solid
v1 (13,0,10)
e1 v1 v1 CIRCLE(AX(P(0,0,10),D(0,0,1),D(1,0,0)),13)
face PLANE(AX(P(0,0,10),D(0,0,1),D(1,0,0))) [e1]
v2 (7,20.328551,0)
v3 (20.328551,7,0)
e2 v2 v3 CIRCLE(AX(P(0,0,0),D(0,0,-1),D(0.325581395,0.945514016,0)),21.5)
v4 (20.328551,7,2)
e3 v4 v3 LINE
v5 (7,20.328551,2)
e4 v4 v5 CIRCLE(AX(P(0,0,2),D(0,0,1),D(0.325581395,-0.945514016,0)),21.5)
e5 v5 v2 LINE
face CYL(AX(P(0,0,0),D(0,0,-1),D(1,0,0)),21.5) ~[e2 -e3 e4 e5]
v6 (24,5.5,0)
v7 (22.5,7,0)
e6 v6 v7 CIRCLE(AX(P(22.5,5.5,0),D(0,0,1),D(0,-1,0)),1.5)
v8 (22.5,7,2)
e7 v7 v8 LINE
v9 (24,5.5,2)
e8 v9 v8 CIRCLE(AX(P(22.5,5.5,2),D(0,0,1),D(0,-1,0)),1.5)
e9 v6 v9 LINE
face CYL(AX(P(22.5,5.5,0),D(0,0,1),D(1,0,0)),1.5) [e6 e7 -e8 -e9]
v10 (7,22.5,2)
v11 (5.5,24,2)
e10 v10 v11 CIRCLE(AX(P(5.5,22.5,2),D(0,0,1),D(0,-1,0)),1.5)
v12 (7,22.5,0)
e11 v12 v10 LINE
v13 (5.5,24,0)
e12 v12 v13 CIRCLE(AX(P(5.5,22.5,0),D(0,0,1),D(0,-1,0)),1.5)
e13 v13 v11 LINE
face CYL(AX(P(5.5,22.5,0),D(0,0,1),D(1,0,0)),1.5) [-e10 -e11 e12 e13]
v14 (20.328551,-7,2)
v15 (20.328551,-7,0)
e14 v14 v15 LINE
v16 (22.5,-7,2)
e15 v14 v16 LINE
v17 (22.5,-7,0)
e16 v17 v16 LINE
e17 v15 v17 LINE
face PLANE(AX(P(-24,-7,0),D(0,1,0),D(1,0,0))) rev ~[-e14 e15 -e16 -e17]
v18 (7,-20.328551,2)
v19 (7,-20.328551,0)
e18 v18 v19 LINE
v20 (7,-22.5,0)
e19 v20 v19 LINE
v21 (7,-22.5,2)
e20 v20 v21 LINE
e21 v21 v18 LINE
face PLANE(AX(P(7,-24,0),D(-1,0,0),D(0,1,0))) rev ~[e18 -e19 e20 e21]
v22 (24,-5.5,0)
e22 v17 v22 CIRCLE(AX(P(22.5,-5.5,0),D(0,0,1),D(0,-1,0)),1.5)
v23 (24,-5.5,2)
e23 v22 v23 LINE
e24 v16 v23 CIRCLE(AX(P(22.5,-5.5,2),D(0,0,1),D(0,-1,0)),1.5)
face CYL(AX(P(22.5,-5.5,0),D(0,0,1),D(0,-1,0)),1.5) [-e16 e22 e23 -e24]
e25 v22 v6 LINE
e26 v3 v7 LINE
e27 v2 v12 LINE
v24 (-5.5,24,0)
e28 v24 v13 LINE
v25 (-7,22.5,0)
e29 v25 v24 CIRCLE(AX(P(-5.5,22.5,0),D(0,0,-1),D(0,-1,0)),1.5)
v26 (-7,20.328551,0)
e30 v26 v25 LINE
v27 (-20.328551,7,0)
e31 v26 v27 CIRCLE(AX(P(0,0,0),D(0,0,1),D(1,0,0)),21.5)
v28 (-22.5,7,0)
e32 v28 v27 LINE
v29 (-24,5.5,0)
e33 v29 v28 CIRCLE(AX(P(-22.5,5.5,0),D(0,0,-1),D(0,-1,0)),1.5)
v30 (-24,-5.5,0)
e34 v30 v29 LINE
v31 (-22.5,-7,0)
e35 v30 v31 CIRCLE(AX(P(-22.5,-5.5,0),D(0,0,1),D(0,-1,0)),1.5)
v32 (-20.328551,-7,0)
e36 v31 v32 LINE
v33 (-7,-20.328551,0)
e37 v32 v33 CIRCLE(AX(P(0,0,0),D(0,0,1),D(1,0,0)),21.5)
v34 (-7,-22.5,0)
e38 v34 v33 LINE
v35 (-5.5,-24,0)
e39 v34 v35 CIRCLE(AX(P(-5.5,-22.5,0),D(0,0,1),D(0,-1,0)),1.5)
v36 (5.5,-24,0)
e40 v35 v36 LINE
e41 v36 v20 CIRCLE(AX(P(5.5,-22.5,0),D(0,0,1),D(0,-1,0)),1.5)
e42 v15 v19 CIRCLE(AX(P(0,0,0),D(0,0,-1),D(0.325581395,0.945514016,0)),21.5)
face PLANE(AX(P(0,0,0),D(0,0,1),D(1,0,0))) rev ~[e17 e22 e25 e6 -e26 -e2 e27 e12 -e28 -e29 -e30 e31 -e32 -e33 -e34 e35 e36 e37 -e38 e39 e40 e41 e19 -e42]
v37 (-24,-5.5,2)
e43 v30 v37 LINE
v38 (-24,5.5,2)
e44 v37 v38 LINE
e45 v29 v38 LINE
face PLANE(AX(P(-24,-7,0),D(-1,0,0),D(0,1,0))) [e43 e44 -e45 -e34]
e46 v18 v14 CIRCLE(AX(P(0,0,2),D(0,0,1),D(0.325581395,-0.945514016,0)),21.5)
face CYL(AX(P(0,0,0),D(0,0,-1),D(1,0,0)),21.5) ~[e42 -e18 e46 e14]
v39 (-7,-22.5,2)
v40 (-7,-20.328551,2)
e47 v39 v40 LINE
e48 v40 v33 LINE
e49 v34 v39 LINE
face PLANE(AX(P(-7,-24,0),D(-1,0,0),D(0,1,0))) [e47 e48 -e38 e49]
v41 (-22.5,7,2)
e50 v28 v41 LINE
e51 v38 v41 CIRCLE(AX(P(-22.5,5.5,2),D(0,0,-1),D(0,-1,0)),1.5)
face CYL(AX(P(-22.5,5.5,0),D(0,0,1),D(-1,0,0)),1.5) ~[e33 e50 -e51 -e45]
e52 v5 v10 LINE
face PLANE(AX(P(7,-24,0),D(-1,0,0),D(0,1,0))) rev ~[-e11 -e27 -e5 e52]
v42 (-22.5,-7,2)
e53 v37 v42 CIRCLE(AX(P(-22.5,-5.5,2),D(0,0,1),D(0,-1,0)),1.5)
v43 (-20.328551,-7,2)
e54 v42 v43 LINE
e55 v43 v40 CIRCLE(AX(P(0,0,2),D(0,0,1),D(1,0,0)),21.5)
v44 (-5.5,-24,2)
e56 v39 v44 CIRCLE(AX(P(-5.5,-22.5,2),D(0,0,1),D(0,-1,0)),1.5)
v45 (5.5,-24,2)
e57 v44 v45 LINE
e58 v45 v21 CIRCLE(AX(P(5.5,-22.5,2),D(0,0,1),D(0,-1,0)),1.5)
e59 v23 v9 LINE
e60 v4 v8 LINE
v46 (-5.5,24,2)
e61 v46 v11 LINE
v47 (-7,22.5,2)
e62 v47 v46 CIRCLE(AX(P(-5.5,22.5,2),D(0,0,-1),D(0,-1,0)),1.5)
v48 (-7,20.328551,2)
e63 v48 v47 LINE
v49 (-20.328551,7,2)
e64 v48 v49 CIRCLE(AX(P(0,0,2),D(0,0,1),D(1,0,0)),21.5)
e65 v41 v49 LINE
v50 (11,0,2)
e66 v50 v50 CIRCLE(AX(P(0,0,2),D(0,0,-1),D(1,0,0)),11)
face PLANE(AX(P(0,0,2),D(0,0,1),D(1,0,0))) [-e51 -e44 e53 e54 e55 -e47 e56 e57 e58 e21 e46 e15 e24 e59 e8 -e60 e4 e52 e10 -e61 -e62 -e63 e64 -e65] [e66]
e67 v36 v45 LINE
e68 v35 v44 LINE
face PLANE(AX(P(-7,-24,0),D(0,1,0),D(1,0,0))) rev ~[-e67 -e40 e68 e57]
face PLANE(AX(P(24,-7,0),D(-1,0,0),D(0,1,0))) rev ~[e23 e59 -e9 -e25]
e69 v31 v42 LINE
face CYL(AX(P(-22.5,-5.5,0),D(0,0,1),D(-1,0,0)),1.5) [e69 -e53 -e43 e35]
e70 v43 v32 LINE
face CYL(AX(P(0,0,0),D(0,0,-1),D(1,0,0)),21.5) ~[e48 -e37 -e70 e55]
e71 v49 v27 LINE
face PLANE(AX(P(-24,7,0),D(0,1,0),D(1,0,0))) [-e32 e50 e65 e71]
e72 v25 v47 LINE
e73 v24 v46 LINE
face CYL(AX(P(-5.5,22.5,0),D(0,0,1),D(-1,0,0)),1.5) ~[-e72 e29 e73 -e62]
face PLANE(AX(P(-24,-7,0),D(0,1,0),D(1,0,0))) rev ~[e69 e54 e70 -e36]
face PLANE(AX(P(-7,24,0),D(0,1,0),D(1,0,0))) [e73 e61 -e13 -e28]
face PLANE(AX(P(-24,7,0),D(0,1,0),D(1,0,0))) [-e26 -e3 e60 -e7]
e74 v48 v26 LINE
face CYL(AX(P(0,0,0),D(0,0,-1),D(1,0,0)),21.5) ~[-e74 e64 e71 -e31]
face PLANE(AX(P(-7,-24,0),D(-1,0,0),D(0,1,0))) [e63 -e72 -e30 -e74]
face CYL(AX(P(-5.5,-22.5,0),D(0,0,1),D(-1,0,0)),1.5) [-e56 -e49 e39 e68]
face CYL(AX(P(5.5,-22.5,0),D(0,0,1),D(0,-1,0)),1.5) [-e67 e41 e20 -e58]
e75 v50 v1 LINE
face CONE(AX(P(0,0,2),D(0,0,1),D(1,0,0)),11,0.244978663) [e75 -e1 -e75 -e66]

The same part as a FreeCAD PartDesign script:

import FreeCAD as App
import Part
import Sketcher
Q = App.Units.Quantity


def edges_at(feature, points):
    """Names of the edges that pass closest to the given points."""
    edges = feature.Shape.Edges
    near = lambda p: min(range(len(edges)), key=lambda i: edges[i].distToShape(Part.Vertex(*p))[0])
    return sorted({f"Edge{near(p) + 1}" for p in points})


def add_polygon(sketch, points):
    """Adds a closed chain of lines whose ends are joined by coincident constraints."""
    first, n = sketch.GeometryCount, len(points)
    for a, b in zip(points, points[1:] + points[:1]):
        sketch.addGeometry(Part.LineSegment(App.Vector(*a, 0), App.Vector(*b, 0)), False)
    for i in range(n):
        sketch.addConstraint(Sketcher.Constraint("Coincident", first + i, 2, first + (i + 1) % n, 1))

doc = App.newDocument("Part")
body = doc.addObject("PartDesign::Body", "Body")

# Sketch on XZ plane
sketch1 = body.newObject("Sketcher::SketchObject", "Sketch")
sketch1.AttachmentSupport = (doc.getObject("XZ_Plane"), [""])
sketch1.MapMode = "FlatFace"
add_polygon(sketch1, [(0, 2), (11, 2), (13, 10), (0, 10)])  # lines 0-3
sketch1.addConstraint([
    Sketcher.Constraint("Horizontal", 0),
    Sketcher.Constraint("Horizontal", 2),
    Sketcher.Constraint("Vertical", 3),
    Sketcher.Constraint("PointOnObject", 2, 2, -2),
    Sketcher.Constraint("DistanceX", 0, 1, 0, 2, Q("11 mm")),
    Sketcher.Constraint("DistanceX", 2, 2, 2, 1, Q("13 mm")),
    Sketcher.Constraint("DistanceY", 3, 2, 3, 1, Q("8 mm")),
    Sketcher.Constraint("DistanceY", -1, 1, 0, 2, Q("2 mm")),
])
revolution = body.newObject("PartDesign::Revolution", "Revolution")
revolution.Profile = sketch1
revolution.ReferenceAxis = (sketch1, ["V_Axis"])
revolution.Angle = 360
body2 = doc.addObject("PartDesign::Body", "Body001")

# Sketch on XY plane
sketch2 = body2.newObject("Sketcher::SketchObject", "Sketch001")
sketch2.AttachmentSupport = (doc.getObject("XY_Plane001"), [""])
sketch2.MapMode = "FlatFace"
add_polygon(sketch2, [(-7, 24), (-7, -24), (7, -24), (7, 24)])  # lines 0-3
sketch2.addConstraint([
    Sketcher.Constraint("Vertical", 0),
    Sketcher.Constraint("Horizontal", 1),
    Sketcher.Constraint("Vertical", 2),
    Sketcher.Constraint("Horizontal", 3),
    Sketcher.Constraint("Symmetric", 0, 2, 2, 2, -1, 1),
    Sketcher.Constraint("DistanceX", 1, 1, 1, 2, Q("14 mm")),
    Sketcher.Constraint("DistanceY", 0, 2, 0, 1, Q("48 mm")),
])
pad1 = body2.newObject("PartDesign::Pad", "Pad")
pad1.Profile = sketch2
pad1.Length = 2
doc.recompute()

fillet = body2.newObject("PartDesign::Fillet", "Fillet")
fillet.Base = (pad1, edges_at(pad1, [
    (-7, -24, 1),
    (-7, 24, 1),
    (7, -24, 1),
    (7, 24, 1),
]))
fillet.Radius = 1.5
body3 = doc.addObject("PartDesign::Body", "Body002")

# Sketch on XY plane
sketch3 = body3.newObject("Sketcher::SketchObject", "Sketch002")
sketch3.AttachmentSupport = (doc.getObject("XY_Plane002"), [""])
sketch3.MapMode = "FlatFace"
add_polygon(sketch3, [(-24, 7), (-24, -7), (24, -7), (24, 7)])  # lines 0-3
sketch3.addConstraint([
    Sketcher.Constraint("Vertical", 0),
    Sketcher.Constraint("Horizontal", 1),
    Sketcher.Constraint("Vertical", 2),
    Sketcher.Constraint("Horizontal", 3),
    Sketcher.Constraint("Symmetric", 0, 2, 2, 2, -1, 1),
    Sketcher.Constraint("DistanceX", 1, 1, 1, 2, Q("48 mm")),
    Sketcher.Constraint("DistanceY", 0, 2, 0, 1, Q("14 mm")),
])
pad2 = body3.newObject("PartDesign::Pad", "Pad001")
pad2.Profile = sketch3
pad2.Length = 2
doc.recompute()

fillet2 = body3.newObject("PartDesign::Fillet", "Fillet001")
fillet2.Base = (pad2, edges_at(pad2, [
    (-24, -7, 1),
    (-24, 7, 1),
    (24, -7, 1),
    (24, 7, 1),
]))
fillet2.Radius = 1.5
body4 = doc.addObject("PartDesign::Body", "Body003")

# Sketch on XY plane
sketch4 = body4.newObject("Sketcher::SketchObject", "Sketch003")
sketch4.AttachmentSupport = (doc.getObject("XY_Plane003"), [""])
sketch4.MapMode = "FlatFace"
sketch4.addGeometry(Part.Circle(App.Vector(0, 0, 0), App.Vector(0, 0, 1), 22), False)
sketch4.addConstraint([
    Sketcher.Constraint("Coincident", 0, 3, -1, 1),
    Sketcher.Constraint("Diameter", 0, Q("43 mm")),
])
pad3 = body4.newObject("PartDesign::Pad", "Pad002")
pad3.Profile = sketch4
pad3.Length = 2
doc.recompute()

boolean = body4.newObject("PartDesign::Boolean", "Boolean")
boolean.Type = "Fuse"
boolean.addObjects([body])
doc.recompute()

boolean2 = body4.newObject("PartDesign::Boolean", "Boolean001")
boolean2.Type = "Fuse"
boolean2.addObjects([body2])
doc.recompute()

boolean3 = body4.newObject("PartDesign::Boolean", "Boolean002")
boolean3.Type = "Fuse"
boolean3.addObjects([body3])

doc.recompute()
